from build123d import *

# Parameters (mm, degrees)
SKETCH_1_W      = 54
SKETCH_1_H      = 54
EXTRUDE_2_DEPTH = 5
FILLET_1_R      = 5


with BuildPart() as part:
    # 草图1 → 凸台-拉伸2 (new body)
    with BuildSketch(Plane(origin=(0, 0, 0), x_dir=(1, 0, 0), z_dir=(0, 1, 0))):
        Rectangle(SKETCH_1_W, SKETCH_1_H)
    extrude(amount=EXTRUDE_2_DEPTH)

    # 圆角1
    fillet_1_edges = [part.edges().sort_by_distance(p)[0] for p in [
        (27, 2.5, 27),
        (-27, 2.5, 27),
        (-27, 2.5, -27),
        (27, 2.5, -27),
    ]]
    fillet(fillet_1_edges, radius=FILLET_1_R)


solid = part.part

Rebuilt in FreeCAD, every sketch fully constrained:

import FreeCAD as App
import Part
import Sketcher

V = App.Vector


def edges_at(feature, points):
    """Names of the edges that pass closest to the given points."""
    edges = feature.Shape.Edges
    near = lambda p: min(range(len(edges)), key=lambda i: edges[i].distToShape(Part.Vertex(*p))[0])
    return sorted({f"Edge{near(p) + 1}" for p in points})

doc = App.newDocument("Part")
body = doc.addObject("PartDesign::Body", "Body")

sketch1 = body.newObject("Sketcher::SketchObject", "Sketch")
sketch1.AttachmentSupport = (doc.getObject("XZ_Plane"), [""])
sketch1.MapMode = "FlatFace"
sketch1.addGeometry([
    Part.LineSegment(V(-27, -27, 0), V(-27, 27, 0)),
    Part.LineSegment(V(-27, 27, 0), V(27, 27, 0)),
    Part.LineSegment(V(27, 27, 0), V(27, -27, 0)),
    Part.LineSegment(V(27, -27, 0), V(-27, -27, 0)),
], False)
sketch1.addConstraint([
    Sketcher.Constraint("Coincident", 0, 2, 1, 1),
    Sketcher.Constraint("Coincident", 1, 2, 2, 1),
    Sketcher.Constraint("Coincident", 2, 2, 3, 1),
    Sketcher.Constraint("Coincident", 3, 2, 0, 1),
    Sketcher.Constraint("Vertical", 0),
    Sketcher.Constraint("Horizontal", 1),
    Sketcher.Constraint("Vertical", 2),
    Sketcher.Constraint("Horizontal", 3),
    Sketcher.Constraint("Symmetric", 0, 2, 2, 2, -1, 1),
    Sketcher.Constraint("Equal", 3, 0),
    Sketcher.Constraint("DistanceX", 1, 1, 1, 2, 54.0),
])
pad1 = body.newObject("PartDesign::Pad", "Pad")
pad1.Profile = sketch1
pad1.Length = 5
pad1.Reversed = True
doc.recompute()

fillet = body.newObject("PartDesign::Fillet", "Fillet")
fillet.Base = (pad1, edges_at(pad1, [
    (27, 2.5, 27),
    (-27, 2.5, 27),
    (-27, 2.5, -27),
    (27, 2.5, -27),
]))
fillet.Radius = 5

doc.recompute()
